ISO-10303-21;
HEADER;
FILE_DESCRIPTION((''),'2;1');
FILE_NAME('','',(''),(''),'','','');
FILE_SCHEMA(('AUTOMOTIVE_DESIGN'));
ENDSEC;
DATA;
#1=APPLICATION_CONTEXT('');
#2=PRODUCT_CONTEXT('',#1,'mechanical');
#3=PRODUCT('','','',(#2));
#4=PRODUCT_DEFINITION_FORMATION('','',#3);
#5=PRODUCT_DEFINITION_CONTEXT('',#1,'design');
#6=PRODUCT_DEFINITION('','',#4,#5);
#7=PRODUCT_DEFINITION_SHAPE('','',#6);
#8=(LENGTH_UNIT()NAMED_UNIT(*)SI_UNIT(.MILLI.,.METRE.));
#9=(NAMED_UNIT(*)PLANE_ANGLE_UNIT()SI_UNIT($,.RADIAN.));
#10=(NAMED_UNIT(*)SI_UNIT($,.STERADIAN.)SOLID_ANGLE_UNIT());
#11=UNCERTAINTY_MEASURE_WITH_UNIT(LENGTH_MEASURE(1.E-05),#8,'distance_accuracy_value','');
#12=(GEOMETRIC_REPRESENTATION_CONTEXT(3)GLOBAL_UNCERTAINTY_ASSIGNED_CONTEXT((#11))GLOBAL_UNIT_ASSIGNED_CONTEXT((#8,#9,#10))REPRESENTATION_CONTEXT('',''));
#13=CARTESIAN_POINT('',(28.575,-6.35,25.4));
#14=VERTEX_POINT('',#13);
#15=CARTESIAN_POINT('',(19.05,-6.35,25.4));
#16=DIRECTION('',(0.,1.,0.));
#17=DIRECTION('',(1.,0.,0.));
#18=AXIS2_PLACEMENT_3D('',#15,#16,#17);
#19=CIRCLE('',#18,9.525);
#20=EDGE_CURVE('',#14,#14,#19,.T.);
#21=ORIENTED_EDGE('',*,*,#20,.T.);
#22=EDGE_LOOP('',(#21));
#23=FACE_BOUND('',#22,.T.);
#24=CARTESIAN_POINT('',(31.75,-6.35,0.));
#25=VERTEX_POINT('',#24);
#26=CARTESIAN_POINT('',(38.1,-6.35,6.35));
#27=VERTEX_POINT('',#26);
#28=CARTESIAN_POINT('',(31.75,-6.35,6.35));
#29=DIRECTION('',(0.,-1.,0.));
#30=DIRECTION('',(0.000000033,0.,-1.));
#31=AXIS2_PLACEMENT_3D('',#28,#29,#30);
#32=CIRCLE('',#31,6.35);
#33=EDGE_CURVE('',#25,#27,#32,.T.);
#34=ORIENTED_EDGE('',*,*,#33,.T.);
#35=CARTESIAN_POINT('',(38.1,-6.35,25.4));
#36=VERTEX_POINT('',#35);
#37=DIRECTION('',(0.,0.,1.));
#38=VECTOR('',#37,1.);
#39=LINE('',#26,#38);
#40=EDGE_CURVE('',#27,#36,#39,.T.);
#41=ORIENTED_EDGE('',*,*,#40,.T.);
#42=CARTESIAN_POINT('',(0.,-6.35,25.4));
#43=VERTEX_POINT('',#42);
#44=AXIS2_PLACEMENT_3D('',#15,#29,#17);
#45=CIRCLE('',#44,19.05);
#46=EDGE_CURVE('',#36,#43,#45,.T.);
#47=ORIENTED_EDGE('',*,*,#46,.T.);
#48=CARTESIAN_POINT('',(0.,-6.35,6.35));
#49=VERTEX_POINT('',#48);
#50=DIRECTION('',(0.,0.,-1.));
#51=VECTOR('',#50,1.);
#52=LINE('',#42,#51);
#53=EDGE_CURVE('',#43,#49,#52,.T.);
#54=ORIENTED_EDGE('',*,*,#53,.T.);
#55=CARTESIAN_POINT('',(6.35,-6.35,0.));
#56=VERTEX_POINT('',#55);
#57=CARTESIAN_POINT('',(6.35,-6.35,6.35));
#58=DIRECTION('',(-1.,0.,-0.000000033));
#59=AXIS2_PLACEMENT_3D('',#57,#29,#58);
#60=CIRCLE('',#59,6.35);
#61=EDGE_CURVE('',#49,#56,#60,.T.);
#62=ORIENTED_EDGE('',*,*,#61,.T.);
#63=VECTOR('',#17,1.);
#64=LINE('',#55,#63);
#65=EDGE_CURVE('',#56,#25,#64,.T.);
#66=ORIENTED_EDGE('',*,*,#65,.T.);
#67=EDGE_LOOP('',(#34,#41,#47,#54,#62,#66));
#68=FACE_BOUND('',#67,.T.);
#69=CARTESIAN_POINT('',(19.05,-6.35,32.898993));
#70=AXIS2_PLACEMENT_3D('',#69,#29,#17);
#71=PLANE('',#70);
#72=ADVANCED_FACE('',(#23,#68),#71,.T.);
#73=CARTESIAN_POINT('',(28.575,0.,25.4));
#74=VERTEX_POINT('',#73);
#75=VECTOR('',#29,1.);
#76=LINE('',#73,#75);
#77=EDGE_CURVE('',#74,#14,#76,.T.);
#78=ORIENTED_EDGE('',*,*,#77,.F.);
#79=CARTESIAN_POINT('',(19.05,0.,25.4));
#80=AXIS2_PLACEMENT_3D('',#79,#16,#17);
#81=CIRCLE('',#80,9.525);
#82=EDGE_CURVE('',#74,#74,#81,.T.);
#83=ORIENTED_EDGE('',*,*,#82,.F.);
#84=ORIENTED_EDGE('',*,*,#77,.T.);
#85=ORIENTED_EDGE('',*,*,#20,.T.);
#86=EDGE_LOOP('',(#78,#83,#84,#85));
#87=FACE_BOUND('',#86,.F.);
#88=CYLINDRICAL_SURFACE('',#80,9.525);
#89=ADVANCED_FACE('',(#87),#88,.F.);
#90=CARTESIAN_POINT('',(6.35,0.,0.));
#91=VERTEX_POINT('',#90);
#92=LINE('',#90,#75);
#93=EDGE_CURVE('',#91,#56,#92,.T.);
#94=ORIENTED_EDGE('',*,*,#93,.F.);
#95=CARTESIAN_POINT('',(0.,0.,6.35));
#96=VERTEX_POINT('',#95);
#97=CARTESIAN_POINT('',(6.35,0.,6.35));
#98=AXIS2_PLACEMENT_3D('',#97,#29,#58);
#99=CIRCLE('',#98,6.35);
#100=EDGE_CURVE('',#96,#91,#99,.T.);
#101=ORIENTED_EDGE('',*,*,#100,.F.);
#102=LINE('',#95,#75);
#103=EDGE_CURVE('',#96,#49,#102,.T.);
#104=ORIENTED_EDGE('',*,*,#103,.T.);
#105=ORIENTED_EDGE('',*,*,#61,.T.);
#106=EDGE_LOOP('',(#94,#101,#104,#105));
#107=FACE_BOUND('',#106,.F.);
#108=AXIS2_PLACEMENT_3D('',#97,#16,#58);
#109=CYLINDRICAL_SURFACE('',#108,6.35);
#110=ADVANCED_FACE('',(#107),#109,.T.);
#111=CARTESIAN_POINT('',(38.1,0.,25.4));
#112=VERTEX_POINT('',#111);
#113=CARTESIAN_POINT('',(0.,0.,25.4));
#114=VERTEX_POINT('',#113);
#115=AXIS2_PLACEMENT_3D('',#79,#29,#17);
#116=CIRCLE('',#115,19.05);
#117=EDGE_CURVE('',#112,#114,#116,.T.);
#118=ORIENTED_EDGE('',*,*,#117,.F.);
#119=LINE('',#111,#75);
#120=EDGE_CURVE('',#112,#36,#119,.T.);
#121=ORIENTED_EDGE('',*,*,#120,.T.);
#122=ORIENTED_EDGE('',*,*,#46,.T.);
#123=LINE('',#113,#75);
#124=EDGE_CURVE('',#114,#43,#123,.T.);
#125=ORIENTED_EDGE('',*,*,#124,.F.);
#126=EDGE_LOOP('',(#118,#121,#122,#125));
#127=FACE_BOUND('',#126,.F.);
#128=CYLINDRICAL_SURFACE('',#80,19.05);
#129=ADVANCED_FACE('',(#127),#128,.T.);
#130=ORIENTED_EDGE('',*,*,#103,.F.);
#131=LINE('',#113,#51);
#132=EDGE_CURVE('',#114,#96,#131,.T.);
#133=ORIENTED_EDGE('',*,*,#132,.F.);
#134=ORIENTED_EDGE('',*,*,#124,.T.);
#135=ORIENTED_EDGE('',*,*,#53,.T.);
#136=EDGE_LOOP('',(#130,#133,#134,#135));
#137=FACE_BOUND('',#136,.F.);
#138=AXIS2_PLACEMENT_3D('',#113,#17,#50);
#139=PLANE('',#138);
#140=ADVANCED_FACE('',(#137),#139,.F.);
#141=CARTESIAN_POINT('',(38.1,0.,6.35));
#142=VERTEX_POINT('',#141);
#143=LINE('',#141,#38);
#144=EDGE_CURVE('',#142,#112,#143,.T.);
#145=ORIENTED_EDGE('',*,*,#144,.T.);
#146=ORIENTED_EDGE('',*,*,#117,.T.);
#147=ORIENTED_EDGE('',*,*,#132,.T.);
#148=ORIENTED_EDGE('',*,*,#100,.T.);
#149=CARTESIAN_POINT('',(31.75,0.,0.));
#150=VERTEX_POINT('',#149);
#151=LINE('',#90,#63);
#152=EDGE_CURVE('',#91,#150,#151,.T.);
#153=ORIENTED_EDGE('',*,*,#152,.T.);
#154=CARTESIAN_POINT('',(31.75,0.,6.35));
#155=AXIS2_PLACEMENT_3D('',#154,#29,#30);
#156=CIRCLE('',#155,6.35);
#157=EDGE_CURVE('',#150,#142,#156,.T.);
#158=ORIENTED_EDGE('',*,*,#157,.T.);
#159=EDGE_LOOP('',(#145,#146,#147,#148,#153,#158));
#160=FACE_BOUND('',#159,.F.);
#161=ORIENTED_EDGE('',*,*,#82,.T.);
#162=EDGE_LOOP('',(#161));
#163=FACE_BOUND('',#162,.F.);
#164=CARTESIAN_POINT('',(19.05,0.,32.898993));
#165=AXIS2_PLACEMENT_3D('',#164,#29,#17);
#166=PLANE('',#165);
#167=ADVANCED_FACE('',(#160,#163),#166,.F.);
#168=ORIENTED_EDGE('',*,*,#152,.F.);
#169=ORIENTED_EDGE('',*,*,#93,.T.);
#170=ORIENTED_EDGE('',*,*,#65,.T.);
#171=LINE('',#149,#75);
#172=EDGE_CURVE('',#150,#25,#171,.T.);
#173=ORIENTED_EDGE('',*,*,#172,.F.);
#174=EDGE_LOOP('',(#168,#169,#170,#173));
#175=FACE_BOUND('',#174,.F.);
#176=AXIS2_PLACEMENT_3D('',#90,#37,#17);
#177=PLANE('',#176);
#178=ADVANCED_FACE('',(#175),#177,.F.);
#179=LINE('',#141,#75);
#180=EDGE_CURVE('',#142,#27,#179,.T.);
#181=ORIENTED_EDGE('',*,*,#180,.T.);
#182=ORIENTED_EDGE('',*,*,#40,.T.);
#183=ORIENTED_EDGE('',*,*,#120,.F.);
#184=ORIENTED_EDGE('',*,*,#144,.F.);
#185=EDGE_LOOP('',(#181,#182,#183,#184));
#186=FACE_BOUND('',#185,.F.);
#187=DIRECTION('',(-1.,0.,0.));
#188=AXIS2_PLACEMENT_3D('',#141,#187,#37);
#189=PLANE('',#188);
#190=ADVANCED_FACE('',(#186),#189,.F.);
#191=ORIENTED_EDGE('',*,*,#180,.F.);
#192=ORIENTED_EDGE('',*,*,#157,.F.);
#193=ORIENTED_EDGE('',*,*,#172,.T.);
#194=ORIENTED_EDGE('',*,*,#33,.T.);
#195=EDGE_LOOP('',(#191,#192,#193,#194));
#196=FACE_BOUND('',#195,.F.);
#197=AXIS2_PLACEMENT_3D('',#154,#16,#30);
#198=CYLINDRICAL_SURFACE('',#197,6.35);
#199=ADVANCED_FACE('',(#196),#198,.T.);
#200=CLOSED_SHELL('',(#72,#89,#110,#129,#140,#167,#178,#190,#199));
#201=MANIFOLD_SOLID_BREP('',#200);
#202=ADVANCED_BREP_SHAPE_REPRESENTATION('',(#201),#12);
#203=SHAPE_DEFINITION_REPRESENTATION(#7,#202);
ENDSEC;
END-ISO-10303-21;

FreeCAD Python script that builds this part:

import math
import FreeCAD as App
import Part
import Sketcher
from FreeCAD import Vector
Q = App.Units.Quantity

doc = App.newDocument("Part")
body = doc.addObject("PartDesign::Body", "Body")

# Sketch on XZ plane
sketch1 = body.newObject("Sketcher::SketchObject", "Sketch")
sketch1.AttachmentSupport = (doc.getObject("XZ_Plane"), [""])
sketch1.MapMode = "FlatFace"
sketch1.addGeometry([
    Part.ArcOfCircle(Part.Circle(Vector(19, 25, 0), Vector(0, 0, 1), 19), math.radians(0), math.radians(180)),  # 0
    Part.LineSegment(Vector(0, 25, 0), Vector(0, 6, 0)),  # 1
    Part.ArcOfCircle(Part.Circle(Vector(6, 6, 0), Vector(0, 0, 1), 6), math.radians(-180), math.radians(-90)),  # 2
    Part.LineSegment(Vector(6, 0, 0), Vector(32, 0, 0)),  # 3
    Part.ArcOfCircle(Part.Circle(Vector(32, 6, 0), Vector(0, 0, 1), 6), math.radians(-90), math.radians(0)),  # 4
    Part.LineSegment(Vector(38, 6, 0), Vector(38, 25, 0)),  # 5
    Part.Circle(Vector(19, 25, 0), Vector(0, 0, 1), 10),  # 6
], False)
sketch1.addConstraint([
    Sketcher.Constraint("Tangent", 0, 2, 1, 1),
    Sketcher.Constraint("Tangent", 1, 2, 2, 1),
    Sketcher.Constraint("Tangent", 2, 2, 3, 1),
    Sketcher.Constraint("Tangent", 3, 2, 4, 1),
    Sketcher.Constraint("Tangent", 4, 2, 5, 1),
    Sketcher.Constraint("Tangent", 5, 2, 0, 1),
    Sketcher.Constraint("Vertical", 1),
    Sketcher.Constraint("Horizontal", 3),
    Sketcher.Constraint("Vertical", 5),
    Sketcher.Constraint("Coincident", 6, 3, 0, 3),
    Sketcher.Constraint("Equal", 2, 4),
    Sketcher.Constraint("PointOnObject", 0, 2, -2),
    Sketcher.Constraint("PointOnObject", 2, 2, -1),
    Sketcher.Constraint("Diameter", 6, Q("0.75 in")),
    Sketcher.Constraint("DistanceX", 3, 1, 3, 2, Q("1 in")),
    Sketcher.Constraint("Radius", 0, Q("0.75 in")),
    Sketcher.Constraint("DistanceY", -1, 1, 0, 3, Q("1 in")),
])
pad1 = body.newObject("PartDesign::Pad", "Pad")
pad1.Profile = sketch1
pad1.Length = Q("0.25 in")

doc.recompute()
